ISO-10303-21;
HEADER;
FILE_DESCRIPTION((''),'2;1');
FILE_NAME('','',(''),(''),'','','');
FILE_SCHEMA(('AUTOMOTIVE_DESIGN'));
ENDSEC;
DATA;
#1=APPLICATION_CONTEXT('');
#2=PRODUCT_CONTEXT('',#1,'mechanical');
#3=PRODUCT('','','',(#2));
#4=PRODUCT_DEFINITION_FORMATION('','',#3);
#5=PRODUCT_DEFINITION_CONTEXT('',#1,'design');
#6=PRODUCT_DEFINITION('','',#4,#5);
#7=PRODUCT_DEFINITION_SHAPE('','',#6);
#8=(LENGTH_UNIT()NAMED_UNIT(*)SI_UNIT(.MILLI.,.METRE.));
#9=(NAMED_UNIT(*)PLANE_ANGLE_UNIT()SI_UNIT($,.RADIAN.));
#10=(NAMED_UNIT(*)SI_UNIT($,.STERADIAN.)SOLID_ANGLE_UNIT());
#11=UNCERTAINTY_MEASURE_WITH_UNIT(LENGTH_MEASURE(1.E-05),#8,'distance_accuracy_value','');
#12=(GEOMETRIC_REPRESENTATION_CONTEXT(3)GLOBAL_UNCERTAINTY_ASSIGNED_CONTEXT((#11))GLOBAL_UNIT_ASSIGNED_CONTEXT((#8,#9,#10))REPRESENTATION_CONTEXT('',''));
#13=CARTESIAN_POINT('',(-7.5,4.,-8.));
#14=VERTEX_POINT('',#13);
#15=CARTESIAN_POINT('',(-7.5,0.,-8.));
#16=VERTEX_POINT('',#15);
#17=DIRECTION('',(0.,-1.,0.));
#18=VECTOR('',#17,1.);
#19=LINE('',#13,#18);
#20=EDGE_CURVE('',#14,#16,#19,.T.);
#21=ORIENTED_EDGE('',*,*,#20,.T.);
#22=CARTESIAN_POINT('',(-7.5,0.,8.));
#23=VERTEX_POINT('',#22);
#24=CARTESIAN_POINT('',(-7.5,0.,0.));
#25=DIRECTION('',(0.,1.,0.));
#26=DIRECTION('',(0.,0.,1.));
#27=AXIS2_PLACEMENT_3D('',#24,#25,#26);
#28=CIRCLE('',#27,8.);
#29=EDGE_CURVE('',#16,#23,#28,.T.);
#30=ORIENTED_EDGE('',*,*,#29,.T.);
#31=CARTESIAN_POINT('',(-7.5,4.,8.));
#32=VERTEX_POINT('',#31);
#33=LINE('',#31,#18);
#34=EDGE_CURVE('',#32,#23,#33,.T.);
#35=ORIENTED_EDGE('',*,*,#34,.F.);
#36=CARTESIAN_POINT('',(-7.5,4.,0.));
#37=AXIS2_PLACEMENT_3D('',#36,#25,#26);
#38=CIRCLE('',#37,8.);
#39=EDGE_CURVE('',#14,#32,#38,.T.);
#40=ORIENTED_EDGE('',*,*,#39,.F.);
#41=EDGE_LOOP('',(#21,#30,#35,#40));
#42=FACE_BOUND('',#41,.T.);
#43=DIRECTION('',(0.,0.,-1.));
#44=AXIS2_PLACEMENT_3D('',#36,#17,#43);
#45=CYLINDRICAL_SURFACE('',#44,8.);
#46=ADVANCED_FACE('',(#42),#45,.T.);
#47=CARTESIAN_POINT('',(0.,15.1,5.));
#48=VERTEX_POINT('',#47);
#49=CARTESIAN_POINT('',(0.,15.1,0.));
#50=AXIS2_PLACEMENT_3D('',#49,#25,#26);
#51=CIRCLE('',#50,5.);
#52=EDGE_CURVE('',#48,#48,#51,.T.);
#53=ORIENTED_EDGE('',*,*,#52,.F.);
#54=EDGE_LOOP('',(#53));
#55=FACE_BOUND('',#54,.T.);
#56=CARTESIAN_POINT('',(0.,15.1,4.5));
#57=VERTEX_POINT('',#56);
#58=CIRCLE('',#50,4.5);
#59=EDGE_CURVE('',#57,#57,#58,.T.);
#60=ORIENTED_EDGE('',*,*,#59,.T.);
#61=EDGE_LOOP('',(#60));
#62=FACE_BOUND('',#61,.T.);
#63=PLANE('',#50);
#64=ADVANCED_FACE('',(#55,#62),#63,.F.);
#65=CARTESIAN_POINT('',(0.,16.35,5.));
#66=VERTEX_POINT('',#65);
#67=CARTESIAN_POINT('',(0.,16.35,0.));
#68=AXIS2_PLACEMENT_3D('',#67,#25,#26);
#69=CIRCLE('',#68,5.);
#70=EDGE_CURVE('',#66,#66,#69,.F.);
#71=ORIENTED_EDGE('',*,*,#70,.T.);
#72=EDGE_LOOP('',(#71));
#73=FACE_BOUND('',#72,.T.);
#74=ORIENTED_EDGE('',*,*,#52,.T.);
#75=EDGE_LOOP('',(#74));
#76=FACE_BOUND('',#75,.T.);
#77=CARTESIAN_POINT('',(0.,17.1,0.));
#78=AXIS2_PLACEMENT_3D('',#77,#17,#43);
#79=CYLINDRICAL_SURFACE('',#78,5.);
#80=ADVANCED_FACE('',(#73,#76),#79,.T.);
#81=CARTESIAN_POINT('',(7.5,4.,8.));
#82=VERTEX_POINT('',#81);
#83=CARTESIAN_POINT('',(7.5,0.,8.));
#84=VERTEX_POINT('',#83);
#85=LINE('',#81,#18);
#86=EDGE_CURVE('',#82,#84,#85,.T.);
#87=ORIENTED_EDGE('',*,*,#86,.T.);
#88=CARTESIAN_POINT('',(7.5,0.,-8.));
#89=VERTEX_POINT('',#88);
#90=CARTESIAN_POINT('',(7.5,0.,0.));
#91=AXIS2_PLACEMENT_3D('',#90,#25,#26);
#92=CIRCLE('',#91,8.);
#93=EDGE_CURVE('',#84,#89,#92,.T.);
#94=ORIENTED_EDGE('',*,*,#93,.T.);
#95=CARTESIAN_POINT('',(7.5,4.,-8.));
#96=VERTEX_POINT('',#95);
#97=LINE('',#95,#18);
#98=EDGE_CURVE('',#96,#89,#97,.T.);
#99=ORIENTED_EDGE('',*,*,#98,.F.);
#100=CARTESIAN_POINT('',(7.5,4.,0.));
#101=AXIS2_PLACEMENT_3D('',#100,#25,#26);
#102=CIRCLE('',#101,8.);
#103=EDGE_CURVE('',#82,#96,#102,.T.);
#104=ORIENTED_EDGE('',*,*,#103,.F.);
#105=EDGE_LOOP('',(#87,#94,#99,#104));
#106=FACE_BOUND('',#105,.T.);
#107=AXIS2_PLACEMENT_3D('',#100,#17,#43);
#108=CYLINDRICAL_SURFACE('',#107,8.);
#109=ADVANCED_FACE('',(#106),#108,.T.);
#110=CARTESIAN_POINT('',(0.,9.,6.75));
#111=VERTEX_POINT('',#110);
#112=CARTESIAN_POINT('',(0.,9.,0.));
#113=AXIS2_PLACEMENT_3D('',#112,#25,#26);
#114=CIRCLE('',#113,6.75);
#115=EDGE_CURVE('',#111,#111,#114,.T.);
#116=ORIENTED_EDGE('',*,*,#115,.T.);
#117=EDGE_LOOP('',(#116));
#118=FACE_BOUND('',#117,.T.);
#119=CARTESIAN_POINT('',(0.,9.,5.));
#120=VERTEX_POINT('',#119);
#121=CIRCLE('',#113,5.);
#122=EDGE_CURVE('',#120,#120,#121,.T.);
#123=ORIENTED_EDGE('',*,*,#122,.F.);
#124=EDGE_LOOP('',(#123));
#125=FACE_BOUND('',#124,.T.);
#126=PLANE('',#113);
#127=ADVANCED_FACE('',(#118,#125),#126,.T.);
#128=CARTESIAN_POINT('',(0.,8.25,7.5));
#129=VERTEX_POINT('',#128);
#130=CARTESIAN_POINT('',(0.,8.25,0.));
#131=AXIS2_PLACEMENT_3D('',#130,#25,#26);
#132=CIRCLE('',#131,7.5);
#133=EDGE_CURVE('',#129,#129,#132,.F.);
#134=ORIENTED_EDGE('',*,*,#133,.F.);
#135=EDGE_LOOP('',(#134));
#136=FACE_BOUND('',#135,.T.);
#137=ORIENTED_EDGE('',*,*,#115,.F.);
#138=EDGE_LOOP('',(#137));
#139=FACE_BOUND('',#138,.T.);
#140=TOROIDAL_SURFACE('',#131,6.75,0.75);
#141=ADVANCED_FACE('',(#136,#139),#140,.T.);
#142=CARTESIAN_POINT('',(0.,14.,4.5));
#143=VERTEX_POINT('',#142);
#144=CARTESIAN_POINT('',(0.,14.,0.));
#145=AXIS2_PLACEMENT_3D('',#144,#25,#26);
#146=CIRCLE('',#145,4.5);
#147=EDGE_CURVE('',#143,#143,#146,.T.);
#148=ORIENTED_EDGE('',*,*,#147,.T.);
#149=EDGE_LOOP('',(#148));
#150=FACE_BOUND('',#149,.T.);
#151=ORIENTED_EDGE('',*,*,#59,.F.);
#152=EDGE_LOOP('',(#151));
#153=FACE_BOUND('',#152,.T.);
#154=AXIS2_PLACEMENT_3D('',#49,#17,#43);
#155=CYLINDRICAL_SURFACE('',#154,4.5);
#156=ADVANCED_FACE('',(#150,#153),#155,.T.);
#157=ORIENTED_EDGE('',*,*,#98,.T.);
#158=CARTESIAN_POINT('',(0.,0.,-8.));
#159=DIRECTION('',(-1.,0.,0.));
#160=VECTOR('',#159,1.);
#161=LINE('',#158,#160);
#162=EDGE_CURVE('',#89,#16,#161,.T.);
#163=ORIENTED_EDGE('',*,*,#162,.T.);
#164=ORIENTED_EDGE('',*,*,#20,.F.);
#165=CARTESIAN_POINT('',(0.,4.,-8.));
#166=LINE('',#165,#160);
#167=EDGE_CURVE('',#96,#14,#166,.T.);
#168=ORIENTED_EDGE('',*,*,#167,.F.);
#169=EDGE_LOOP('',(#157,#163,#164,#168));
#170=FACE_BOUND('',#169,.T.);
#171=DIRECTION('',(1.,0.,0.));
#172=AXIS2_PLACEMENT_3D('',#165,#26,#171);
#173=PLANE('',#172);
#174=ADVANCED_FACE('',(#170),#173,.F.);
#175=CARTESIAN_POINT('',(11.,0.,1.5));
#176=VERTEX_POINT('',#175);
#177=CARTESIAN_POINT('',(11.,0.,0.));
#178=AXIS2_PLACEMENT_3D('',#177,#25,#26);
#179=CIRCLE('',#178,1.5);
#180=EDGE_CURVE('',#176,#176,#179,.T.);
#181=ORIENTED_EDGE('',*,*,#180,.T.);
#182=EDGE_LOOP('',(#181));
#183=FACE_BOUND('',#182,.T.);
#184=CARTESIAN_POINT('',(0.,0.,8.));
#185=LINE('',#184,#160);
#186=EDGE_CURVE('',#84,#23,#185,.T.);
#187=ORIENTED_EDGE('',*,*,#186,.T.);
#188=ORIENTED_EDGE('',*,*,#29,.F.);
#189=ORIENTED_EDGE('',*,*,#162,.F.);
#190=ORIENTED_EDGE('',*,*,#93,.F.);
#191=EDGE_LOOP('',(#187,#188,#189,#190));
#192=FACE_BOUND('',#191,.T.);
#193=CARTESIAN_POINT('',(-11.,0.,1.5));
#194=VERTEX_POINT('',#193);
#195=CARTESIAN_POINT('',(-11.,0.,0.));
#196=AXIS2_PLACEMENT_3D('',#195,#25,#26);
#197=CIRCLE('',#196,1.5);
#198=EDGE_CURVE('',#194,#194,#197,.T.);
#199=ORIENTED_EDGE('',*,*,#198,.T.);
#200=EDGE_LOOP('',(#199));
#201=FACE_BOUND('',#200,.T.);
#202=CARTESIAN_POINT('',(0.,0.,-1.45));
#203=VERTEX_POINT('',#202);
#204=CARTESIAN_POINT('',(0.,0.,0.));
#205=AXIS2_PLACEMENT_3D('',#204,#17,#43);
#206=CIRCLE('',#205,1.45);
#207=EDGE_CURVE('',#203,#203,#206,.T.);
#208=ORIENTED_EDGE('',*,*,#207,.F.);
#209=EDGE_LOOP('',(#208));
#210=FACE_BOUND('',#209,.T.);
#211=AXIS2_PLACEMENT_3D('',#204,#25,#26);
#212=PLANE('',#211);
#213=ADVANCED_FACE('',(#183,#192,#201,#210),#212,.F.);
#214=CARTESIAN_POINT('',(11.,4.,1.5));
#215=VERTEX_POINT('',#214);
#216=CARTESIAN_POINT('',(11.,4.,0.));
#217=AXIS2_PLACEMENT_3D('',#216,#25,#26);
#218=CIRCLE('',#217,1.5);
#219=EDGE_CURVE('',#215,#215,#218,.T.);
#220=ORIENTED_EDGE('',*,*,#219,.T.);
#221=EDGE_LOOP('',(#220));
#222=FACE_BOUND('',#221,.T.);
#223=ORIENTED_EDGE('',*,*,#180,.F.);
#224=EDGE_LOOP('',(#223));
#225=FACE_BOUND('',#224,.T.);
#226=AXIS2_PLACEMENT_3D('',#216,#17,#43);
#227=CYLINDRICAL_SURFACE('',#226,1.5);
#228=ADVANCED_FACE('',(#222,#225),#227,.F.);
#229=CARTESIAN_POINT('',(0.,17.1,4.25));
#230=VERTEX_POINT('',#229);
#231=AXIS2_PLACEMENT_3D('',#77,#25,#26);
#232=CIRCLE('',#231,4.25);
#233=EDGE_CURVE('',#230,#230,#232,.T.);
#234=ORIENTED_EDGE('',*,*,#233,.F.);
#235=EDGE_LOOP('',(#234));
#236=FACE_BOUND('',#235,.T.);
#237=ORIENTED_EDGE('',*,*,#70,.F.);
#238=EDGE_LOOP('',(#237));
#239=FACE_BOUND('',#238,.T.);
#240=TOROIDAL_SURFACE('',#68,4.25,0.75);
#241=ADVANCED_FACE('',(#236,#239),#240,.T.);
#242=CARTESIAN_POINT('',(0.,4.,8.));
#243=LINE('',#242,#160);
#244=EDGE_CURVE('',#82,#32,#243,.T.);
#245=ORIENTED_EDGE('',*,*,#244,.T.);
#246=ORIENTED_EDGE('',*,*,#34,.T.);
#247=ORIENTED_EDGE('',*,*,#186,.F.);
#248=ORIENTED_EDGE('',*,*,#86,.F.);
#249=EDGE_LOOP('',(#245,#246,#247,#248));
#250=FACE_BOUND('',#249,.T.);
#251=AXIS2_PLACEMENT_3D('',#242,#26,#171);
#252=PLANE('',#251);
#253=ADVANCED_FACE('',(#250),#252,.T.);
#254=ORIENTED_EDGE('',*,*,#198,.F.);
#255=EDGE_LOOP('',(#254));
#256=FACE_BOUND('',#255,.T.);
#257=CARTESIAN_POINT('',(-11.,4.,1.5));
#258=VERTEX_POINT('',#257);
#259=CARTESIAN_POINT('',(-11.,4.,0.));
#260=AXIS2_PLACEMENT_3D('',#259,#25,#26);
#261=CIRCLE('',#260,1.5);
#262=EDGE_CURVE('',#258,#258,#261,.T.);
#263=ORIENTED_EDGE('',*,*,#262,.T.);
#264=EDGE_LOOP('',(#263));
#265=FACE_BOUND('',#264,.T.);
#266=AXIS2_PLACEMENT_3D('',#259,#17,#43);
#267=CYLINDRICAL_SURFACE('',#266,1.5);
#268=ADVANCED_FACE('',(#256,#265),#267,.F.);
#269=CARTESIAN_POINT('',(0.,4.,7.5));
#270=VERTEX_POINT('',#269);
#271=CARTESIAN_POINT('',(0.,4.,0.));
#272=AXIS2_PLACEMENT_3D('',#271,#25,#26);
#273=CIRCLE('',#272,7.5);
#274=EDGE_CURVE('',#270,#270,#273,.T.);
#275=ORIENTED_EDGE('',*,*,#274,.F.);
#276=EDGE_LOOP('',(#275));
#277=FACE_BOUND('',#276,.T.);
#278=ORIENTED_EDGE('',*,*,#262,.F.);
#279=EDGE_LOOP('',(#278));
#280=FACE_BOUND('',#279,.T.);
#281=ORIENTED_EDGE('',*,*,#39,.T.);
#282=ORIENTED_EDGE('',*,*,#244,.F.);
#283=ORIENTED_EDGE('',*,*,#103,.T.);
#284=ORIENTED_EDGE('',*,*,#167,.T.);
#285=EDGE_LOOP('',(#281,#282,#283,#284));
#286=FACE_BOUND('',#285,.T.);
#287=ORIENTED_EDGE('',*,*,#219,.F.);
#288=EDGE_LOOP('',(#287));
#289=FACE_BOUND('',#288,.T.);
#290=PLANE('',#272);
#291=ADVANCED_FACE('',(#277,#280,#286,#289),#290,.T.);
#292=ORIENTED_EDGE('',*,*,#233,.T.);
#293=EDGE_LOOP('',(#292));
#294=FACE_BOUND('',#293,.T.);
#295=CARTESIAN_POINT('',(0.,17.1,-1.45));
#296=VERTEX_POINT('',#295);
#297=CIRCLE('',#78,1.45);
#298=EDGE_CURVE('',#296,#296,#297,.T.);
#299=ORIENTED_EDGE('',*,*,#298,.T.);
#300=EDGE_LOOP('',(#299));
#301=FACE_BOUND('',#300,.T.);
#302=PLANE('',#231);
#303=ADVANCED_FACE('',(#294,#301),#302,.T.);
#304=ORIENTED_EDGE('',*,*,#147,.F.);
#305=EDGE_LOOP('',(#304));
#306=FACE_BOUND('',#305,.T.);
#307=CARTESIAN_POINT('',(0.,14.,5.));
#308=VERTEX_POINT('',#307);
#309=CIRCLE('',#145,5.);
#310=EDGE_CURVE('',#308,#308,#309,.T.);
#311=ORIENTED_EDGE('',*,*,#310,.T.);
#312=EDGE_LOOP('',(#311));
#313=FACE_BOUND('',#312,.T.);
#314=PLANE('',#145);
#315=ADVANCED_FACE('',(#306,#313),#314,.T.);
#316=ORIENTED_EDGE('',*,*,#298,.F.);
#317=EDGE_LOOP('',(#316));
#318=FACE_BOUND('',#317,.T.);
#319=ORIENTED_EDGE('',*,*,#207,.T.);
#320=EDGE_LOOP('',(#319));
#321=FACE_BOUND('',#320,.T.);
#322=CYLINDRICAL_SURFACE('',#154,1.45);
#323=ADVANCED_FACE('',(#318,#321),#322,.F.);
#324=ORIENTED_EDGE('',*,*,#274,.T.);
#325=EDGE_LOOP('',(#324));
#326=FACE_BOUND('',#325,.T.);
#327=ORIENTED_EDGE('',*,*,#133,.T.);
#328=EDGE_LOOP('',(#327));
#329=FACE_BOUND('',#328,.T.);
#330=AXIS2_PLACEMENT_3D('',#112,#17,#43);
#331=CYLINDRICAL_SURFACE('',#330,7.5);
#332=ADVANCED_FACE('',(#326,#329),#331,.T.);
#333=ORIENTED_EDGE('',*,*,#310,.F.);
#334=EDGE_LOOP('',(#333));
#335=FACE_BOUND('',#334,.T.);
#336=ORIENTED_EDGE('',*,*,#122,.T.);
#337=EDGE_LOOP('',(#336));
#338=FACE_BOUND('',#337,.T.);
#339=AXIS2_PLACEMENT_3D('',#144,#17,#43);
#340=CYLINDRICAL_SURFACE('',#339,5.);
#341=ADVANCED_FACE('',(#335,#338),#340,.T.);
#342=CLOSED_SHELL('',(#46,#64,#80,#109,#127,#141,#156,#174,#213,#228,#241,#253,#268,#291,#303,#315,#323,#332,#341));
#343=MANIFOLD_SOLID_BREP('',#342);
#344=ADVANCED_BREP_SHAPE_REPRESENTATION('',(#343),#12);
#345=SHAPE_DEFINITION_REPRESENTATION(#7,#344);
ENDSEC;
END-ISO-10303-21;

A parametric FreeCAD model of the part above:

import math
import FreeCAD as App
import Part
import Sketcher
Q = App.Units.Quantity


def edges_at(feature, points):
    """Names of the edges that pass closest to the given points."""
    edges = feature.Shape.Edges
    near = lambda p: min(range(len(edges)), key=lambda i: edges[i].distToShape(Part.Vertex(*p))[0])
    return sorted({f"Edge{near(p) + 1}" for p in points})

doc = App.newDocument("Part")
body = doc.addObject("PartDesign::Body", "Body")

# Sketch on XZ plane
sketch1 = body.newObject("Sketcher::SketchObject", "Sketch")
sketch1.AttachmentSupport = (doc.getObject("XZ_Plane"), [""])
sketch1.MapMode = "FlatFace"
sketch1.addGeometry([
    Part.ArcOfCircle(Part.Circle(App.Vector(-7.5, 0, 0), App.Vector(0, 0, 1), 8), math.radians(90), math.radians(270)),  # 0
    Part.LineSegment(App.Vector(-7.5, 8, 0), App.Vector(7.5, 8, 0)),  # 1
    Part.ArcOfCircle(Part.Circle(App.Vector(7.5, 0, 0), App.Vector(0, 0, 1), 8), math.radians(-90), math.radians(90)),  # 2
    Part.LineSegment(App.Vector(7.5, -8, 0), App.Vector(-7.5, -8, 0)),  # 3
    Part.Circle(App.Vector(-11, 0, 0), App.Vector(0, 0, 1), 1.5),  # 4
    Part.Circle(App.Vector(11, 0, 0), App.Vector(0, 0, 1), 1.5),  # 5
], False)
sketch1.addConstraint([
    Sketcher.Constraint("Tangent", 0, 1, 1, 1),
    Sketcher.Constraint("Tangent", 1, 2, 2, 2),
    Sketcher.Constraint("Tangent", 2, 1, 3, 1),
    Sketcher.Constraint("Tangent", 3, 2, 0, 2),
    Sketcher.Constraint("Horizontal", 1),
    Sketcher.Constraint("Horizontal", 3),
    Sketcher.Constraint("Equal", 4, 5),
    Sketcher.Constraint("Symmetric", 0, 3, 2, 3, -1, 1),
    Sketcher.Constraint("Symmetric", 4, 3, 5, 3, -1, 1),
    Sketcher.Constraint("PointOnObject", 4, 3, -1),
    Sketcher.Constraint("Diameter", 4, Q("3 mm")),
    Sketcher.Constraint("Radius", 0, Q("8 mm")),
    Sketcher.Constraint("DistanceX", 1, 1, 1, 2, Q("15 mm")),
    Sketcher.Constraint("DistanceX", 4, 3, -1, 1, Q("11 mm")),
])
pad1 = body.newObject("PartDesign::Pad", "Pad")
pad1.Profile = sketch1
pad1.Length = 4
pad1.Reversed = True

# Sketch on XZ plane
sketch2 = body.newObject("Sketcher::SketchObject", "Sketch001")
sketch2.AttachmentSupport = (doc.getObject("XZ_Plane"), [""])
sketch2.MapMode = "FlatFace"
sketch2.AttachmentOffset = App.Placement(App.Vector(0, 0, -4), App.Rotation())
sketch2.addGeometry(Part.Circle(App.Vector(0, 0, 0), App.Vector(0, 0, 1), 7.5), False)
sketch2.addConstraint([
    Sketcher.Constraint("Coincident", 0, 3, -1, 1),
    Sketcher.Constraint("Diameter", 0, Q("15 mm")),
])
pad2 = body.newObject("PartDesign::Pad", "Pad001")
pad2.Profile = sketch2
pad2.Length = 5
pad2.Reversed = True

# Sketch on XZ plane
sketch3 = body.newObject("Sketcher::SketchObject", "Sketch002")
sketch3.AttachmentSupport = (doc.getObject("XZ_Plane"), [""])
sketch3.MapMode = "FlatFace"
sketch3.AttachmentOffset = App.Placement(App.Vector(0, 0, -9), App.Rotation())
sketch3.addGeometry(Part.Circle(App.Vector(0, 0, 0), App.Vector(0, 0, 1), 5), False)
sketch3.addConstraint([
    Sketcher.Constraint("Coincident", 0, 3, -1, 1),
    Sketcher.Constraint("Diameter", 0, Q("10 mm")),
])
pad3 = body.newObject("PartDesign::Pad", "Pad002")
pad3.Profile = sketch3
pad3.Length = 5
pad3.Reversed = True

# Sketch on XZ plane
sketch4 = body.newObject("Sketcher::SketchObject", "Sketch003")
sketch4.AttachmentSupport = (doc.getObject("XZ_Plane"), [""])
sketch4.MapMode = "FlatFace"
sketch4.AttachmentOffset = App.Placement(App.Vector(0, 0, -14), App.Rotation())
sketch4.addGeometry(Part.Circle(App.Vector(0, 0, 0), App.Vector(0, 0, 1), 4.5), False)
sketch4.addConstraint([
    Sketcher.Constraint("Coincident", 0, 3, -1, 1),
    Sketcher.Constraint("Diameter", 0, Q("9 mm")),
])
pad4 = body.newObject("PartDesign::Pad", "Pad003")
pad4.Profile = sketch4
pad4.Length = 1.1
pad4.Reversed = True

# Sketch on XZ plane
sketch5 = body.newObject("Sketcher::SketchObject", "Sketch004")
sketch5.AttachmentSupport = (doc.getObject("XZ_Plane"), [""])
sketch5.MapMode = "FlatFace"
sketch5.addGeometry(Part.Circle(App.Vector(0, 0, 0), App.Vector(0, 0, 1), 1.45), False)
sketch5.addConstraint([
    Sketcher.Constraint("Coincident", 0, 3, -1, 1),
    Sketcher.Constraint("Diameter", 0, Q("2.9 mm")),
])
pocket1 = body.newObject("PartDesign::Pocket", "Pocket")
pocket1.Profile = sketch5
pocket1.Type = "ThroughAll"

# Sketch on XZ plane
sketch6 = body.newObject("Sketcher::SketchObject", "Sketch005")
sketch6.AttachmentSupport = (doc.getObject("XZ_Plane"), [""])
sketch6.MapMode = "FlatFace"
sketch6.AttachmentOffset = App.Placement(App.Vector(0, 0, -15.1), App.Rotation())
sketch6.addGeometry(Part.Circle(App.Vector(0, 0, 0), App.Vector(0, 0, 1), 5), False)
sketch6.addConstraint([
    Sketcher.Constraint("Coincident", 0, 3, -1, 1),
    Sketcher.Constraint("Diameter", 0, Q("10 mm")),
])
pad5 = body.newObject("PartDesign::Pad", "Pad004")
pad5.Profile = sketch6
pad5.Length = 2
pad5.Reversed = True
doc.recompute()

fillet = body.newObject("PartDesign::Fillet", "Fillet")
fillet.Base = (pad5, edges_at(pad5, [(0, 9, -7.5), (0, 17.1, -5)]))
fillet.Radius = 0.75

# Sketch on XZ plane
sketch7 = body.newObject("Sketcher::SketchObject", "Sketch006")
sketch7.AttachmentSupport = (doc.getObject("XZ_Plane"), [""])
sketch7.MapMode = "FlatFace"
sketch7.addGeometry(Part.Circle(App.Vector(0, 0, 0), App.Vector(0, 0, 1), 1.45), False)
sketch7.addConstraint([
    Sketcher.Constraint("Coincident", 0, 3, -1, 1),
    Sketcher.Constraint("Diameter", 0, Q("2.9 mm")),
])
pocket2 = body.newObject("PartDesign::Pocket", "Pocket001")
pocket2.Profile = sketch7
pocket2.Type = "ThroughAll"

doc.recompute()
